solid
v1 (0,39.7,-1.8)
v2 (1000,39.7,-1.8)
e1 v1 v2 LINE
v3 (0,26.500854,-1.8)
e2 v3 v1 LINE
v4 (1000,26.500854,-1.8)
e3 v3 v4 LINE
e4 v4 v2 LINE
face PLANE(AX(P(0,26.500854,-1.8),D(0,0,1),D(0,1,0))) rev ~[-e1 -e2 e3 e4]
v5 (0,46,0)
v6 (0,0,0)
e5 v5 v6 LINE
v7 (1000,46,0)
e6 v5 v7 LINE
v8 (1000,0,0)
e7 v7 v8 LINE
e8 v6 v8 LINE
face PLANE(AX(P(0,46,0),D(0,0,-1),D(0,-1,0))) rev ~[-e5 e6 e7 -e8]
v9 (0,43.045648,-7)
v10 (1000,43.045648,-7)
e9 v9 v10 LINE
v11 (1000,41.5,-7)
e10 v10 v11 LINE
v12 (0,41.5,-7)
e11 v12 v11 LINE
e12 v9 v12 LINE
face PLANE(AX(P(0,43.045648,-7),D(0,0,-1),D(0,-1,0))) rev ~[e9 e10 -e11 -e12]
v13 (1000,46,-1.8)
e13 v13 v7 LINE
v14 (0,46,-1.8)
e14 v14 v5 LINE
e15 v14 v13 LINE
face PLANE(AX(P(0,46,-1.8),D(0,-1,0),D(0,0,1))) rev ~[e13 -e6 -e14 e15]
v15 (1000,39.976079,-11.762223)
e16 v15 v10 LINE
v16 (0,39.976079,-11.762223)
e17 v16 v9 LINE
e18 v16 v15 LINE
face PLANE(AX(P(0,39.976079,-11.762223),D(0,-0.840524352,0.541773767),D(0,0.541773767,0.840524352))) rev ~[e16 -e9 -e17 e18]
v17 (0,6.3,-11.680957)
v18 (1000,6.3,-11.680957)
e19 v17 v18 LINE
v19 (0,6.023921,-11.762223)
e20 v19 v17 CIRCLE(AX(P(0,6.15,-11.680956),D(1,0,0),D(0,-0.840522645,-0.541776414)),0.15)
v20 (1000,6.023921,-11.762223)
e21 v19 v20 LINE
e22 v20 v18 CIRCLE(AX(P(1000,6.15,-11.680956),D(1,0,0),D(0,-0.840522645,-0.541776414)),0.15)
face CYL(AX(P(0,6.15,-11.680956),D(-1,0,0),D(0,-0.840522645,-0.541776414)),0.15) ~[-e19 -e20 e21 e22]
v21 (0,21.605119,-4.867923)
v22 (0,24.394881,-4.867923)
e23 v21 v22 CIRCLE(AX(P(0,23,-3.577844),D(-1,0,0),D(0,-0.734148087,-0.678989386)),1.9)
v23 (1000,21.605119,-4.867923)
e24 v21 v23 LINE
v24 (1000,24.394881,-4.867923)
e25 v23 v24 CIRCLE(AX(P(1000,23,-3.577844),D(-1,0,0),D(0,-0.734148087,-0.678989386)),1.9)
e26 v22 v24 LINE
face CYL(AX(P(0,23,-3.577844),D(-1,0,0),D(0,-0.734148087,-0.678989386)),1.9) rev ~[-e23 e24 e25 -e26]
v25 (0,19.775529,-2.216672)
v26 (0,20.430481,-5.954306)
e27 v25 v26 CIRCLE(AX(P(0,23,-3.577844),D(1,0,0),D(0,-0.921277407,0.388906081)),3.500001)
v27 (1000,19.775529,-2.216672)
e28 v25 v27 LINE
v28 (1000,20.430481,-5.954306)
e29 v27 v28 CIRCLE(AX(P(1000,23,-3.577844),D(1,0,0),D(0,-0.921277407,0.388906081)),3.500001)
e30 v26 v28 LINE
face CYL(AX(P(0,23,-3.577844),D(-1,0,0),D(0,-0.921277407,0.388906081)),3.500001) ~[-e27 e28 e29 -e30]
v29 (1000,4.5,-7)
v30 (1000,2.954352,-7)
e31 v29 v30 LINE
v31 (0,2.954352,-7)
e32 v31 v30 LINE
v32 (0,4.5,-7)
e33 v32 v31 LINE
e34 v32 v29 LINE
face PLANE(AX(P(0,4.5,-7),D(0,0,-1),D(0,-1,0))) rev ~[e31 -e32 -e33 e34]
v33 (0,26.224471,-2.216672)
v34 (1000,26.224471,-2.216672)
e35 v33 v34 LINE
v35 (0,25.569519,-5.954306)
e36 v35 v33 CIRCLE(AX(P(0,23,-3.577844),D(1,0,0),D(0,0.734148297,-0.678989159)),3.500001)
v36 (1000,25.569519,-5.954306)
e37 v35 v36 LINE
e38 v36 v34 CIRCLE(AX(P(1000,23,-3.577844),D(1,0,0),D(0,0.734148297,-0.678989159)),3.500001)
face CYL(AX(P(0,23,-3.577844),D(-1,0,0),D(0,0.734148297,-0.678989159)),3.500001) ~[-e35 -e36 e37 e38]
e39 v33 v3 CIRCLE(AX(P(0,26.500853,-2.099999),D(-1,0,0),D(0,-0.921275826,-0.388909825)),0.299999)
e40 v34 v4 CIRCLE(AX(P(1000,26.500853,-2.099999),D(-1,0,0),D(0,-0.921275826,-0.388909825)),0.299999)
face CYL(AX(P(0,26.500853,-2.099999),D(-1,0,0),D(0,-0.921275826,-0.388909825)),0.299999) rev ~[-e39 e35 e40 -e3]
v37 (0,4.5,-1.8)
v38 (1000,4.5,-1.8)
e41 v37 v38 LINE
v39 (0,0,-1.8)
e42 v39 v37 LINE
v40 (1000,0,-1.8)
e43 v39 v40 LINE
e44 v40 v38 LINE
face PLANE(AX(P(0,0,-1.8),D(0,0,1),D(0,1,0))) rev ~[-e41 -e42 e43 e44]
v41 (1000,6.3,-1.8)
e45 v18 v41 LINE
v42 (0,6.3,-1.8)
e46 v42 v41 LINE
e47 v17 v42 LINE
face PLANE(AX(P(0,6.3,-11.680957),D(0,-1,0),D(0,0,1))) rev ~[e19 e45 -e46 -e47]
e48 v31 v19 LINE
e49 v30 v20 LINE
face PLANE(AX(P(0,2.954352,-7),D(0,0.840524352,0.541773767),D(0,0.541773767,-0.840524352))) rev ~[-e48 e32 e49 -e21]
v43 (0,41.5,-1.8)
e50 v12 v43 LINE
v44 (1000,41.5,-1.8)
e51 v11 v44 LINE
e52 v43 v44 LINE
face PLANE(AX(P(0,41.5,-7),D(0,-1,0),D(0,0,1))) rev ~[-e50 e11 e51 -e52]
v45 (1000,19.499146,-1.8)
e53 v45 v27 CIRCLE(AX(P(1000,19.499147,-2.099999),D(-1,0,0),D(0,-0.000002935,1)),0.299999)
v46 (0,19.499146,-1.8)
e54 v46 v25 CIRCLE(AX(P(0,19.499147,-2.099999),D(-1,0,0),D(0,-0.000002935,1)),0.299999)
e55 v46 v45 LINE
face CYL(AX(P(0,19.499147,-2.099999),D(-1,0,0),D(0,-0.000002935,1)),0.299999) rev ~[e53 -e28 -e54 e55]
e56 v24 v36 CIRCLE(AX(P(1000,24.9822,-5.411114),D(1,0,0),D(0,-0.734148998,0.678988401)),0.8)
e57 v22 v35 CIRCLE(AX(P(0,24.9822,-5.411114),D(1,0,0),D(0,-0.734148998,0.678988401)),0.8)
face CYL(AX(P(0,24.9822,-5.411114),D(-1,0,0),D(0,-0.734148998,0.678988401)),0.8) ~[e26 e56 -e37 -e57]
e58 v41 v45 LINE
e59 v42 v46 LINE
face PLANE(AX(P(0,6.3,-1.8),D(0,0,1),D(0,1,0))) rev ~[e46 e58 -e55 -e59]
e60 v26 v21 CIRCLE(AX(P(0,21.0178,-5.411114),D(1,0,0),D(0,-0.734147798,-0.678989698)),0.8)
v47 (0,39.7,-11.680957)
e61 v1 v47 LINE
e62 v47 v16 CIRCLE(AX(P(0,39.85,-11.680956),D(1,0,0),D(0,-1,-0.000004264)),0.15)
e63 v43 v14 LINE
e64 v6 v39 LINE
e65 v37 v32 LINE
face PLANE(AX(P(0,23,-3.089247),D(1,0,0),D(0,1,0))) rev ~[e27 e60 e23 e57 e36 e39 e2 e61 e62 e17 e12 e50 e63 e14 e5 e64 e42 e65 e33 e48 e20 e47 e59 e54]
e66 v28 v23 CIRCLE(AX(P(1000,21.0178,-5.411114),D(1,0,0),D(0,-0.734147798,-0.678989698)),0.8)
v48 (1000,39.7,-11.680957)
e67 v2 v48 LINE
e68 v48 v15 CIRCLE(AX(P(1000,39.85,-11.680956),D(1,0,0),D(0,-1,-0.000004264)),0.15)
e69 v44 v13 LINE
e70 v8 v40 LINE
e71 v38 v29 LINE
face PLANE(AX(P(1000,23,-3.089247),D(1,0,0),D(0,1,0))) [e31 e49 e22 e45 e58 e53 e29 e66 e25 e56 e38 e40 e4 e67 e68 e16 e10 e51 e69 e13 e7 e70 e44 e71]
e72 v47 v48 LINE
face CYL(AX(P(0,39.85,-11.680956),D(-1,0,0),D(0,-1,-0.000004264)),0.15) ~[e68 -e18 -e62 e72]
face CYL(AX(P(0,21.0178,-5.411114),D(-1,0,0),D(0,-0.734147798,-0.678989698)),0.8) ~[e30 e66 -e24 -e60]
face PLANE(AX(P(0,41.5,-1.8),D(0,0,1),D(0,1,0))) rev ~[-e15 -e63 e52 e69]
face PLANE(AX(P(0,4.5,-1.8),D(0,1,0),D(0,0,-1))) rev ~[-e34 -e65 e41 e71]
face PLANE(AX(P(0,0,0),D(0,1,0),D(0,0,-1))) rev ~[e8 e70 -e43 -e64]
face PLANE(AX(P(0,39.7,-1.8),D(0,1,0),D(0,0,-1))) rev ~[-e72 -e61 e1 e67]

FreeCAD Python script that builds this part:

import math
import FreeCAD as App
import Part
import Sketcher
from FreeCAD import Vector
Q = App.Units.Quantity

doc = App.newDocument("Part")
body = doc.addObject("PartDesign::Body", "Body")

sketch1 = doc.addObject("Sketcher::SketchObject", "Sketch")
body.addObject(sketch1)
sketch1.AttachmentSupport = (doc.YZ_Plane, [""])
sketch1.MapMode = "FlatFace"
sketch1.addGeometry([
    Part.ArcOfCircle(Part.Circle(Vector(23, -3.577844, 0), Vector(0, 0, 1), 1.9), math.radians(-42.764721), math.radians(222.764721)),
    Part.ArcOfCircle(Part.Circle(Vector(24.9822, -5.411114, 0), Vector(0, 0, 1), 0.8), math.radians(137.235356), math.radians(317.235255)),
    Part.ArcOfCircle(Part.Circle(Vector(23, -3.577844, 0), Vector(0, 0, 1), 3.500001), math.radians(-42.764703), math.radians(22.88645)),
    Part.ArcOfCircle(Part.Circle(Vector(26.500853, -2.099999, 0), Vector(0, 0, 1), 0.299999), math.radians(89.999832), math.radians(202.886683)),
    Part.LineSegment(Vector(26.500854, -1.8, 0), Vector(39.7, -1.8, 0)),
    Part.LineSegment(Vector(39.7, -1.8, 0), Vector(39.7, -11.680957, 0)),
    Part.ArcOfCircle(Part.Circle(Vector(39.85, -11.680956, 0), Vector(0, 0, 1), 0.15), math.radians(-179.999756), math.radians(-32.804649)),
    Part.LineSegment(Vector(39.976079, -11.762223, 0), Vector(43.045648, -7, 0)),
    Part.LineSegment(Vector(43.045648, -7, 0), Vector(41.5, -7, 0)),
    Part.LineSegment(Vector(41.5, -7, 0), Vector(41.5, -1.8, 0)),
    Part.LineSegment(Vector(41.5, -1.8, 0), Vector(46, -1.8, 0)),
    Part.LineSegment(Vector(46, -1.8, 0), Vector(46, 0, 0)),
    Part.LineSegment(Vector(46, 0, 0), Vector(0, 0, 0)),
    Part.LineSegment(Vector(0, 0, 0), Vector(0, -1.8, 0)),
    Part.LineSegment(Vector(0, -1.8, 0), Vector(4.5, -1.8, 0)),
    Part.LineSegment(Vector(4.5, -1.8, 0), Vector(4.5, -7, 0)),
    Part.LineSegment(Vector(4.5, -7, 0), Vector(2.954352, -7, 0)),
    Part.LineSegment(Vector(2.954352, -7, 0), Vector(6.023921, -11.762223, 0)),
    Part.ArcOfCircle(Part.Circle(Vector(6.15, -11.680956, 0), Vector(0, 0, 1), 0.15), math.radians(-147.195351), math.radians(-0.000244)),
    Part.LineSegment(Vector(6.3, -11.680957, 0), Vector(6.3, -1.8, 0)),
    Part.LineSegment(Vector(6.3, -1.8, 0), Vector(19.499146, -1.8, 0)),
    Part.ArcOfCircle(Part.Circle(Vector(19.499147, -2.099999, 0), Vector(0, 0, 1), 0.299999), math.radians(-22.886683), math.radians(90.000168)),
    Part.ArcOfCircle(Part.Circle(Vector(23, -3.577844, 0), Vector(0, 0, 1), 3.500001), math.radians(157.11355), math.radians(222.764703)),
    Part.ArcOfCircle(Part.Circle(Vector(21.0178, -5.411114, 0), Vector(0, 0, 1), 0.8), math.radians(-137.235255), math.radians(42.764644)),
], False)
sketch1.addConstraint([
    Sketcher.Constraint("Tangent", 0, 1, 1, 1),
    Sketcher.Constraint("Tangent", 1, 2, 2, 1),
    Sketcher.Constraint("Coincident", 2, 2, 3, 2),
    Sketcher.Constraint("Coincident", 3, 1, 4, 1),
    Sketcher.Constraint("Coincident", 4, 2, 5, 1),
    Sketcher.Constraint("Coincident", 5, 2, 6, 1),
    Sketcher.Constraint("Coincident", 6, 2, 7, 1),
    Sketcher.Constraint("Coincident", 7, 2, 8, 1),
    Sketcher.Constraint("Coincident", 8, 2, 9, 1),
    Sketcher.Constraint("Coincident", 9, 2, 10, 1),
    Sketcher.Constraint("Coincident", 10, 2, 11, 1),
    Sketcher.Constraint("Coincident", 11, 2, 12, 1),
    Sketcher.Constraint("Coincident", 12, 2, 13, 1),
    Sketcher.Constraint("Coincident", 13, 2, 14, 1),
    Sketcher.Constraint("Coincident", 14, 2, 15, 1),
    Sketcher.Constraint("Coincident", 15, 2, 16, 1),
    Sketcher.Constraint("Coincident", 16, 2, 17, 1),
    Sketcher.Constraint("Coincident", 17, 2, 18, 1),
    Sketcher.Constraint("Coincident", 18, 2, 19, 1),
    Sketcher.Constraint("Coincident", 19, 2, 20, 1),
    Sketcher.Constraint("Coincident", 20, 2, 21, 2),
    Sketcher.Constraint("Coincident", 21, 1, 22, 1),
    Sketcher.Constraint("Tangent", 22, 2, 23, 1),
    Sketcher.Constraint("Tangent", 23, 2, 0, 2),
    Sketcher.Constraint("Horizontal", 4),
    Sketcher.Constraint("Vertical", 5),
    Sketcher.Constraint("Horizontal", 8),
    Sketcher.Constraint("Vertical", 9),
    Sketcher.Constraint("Horizontal", 10),
    Sketcher.Constraint("Vertical", 11),
    Sketcher.Constraint("Horizontal", 12),
    Sketcher.Constraint("Vertical", 13),
    Sketcher.Constraint("Horizontal", 14),
    Sketcher.Constraint("Vertical", 15),
    Sketcher.Constraint("Horizontal", 16),
    Sketcher.Constraint("Vertical", 19),
    Sketcher.Constraint("Horizontal", 20),
    Sketcher.Constraint("Coincident", 12, 2, -1, 1),
    Sketcher.Constraint("Coincident", 2, 3, 0, 3),
    Sketcher.Constraint("Coincident", 22, 3, 0, 3),
    Sketcher.Constraint("Equal", 6, 18),
    Sketcher.Constraint("Equal", 3, 21),
    Sketcher.Constraint("Equal", 2, 22),
    Sketcher.Constraint("Horizontal", 6, 3, 18, 3),
    Sketcher.Constraint("Horizontal", 3, 3, 21, 3),
    Sketcher.Constraint("Horizontal", 1, 3, 23, 3),
    Sketcher.Constraint("Horizontal", 18, 3, 5, 2),
    Sketcher.Constraint("Horizontal", 4, 2, 9, 2),
    Sketcher.Constraint("Horizontal", 10, 2, 13, 2),
    Sketcher.Constraint("Horizontal", 8, 2, 15, 2),
    Sketcher.Constraint("Horizontal", 6, 2, 17, 2),
    Sketcher.Constraint("Horizontal", 5, 2, 18, 2),
    Sketcher.Constraint("Horizontal", 2, 2, 21, 1),
    Sketcher.Constraint("Vertical", 21, 3, 20, 2),
    Sketcher.Constraint("Equal", 10, 14),
    Sketcher.Constraint("Equal", 8, 16),
    Sketcher.Constraint("Equal", 4, 20),
    Sketcher.Constraint("Equal", 7, 17),
    Sketcher.Constraint("Radius", 0, Q("1.9 mm")),
    Sketcher.Constraint("Radius", 1, Q("0.8 mm")),
    Sketcher.Constraint("Radius", 3, Q("0.299999 mm")),
    Sketcher.Constraint("DistanceX", 12, 2, 12, 1, Q("46 mm")),
    Sketcher.Constraint("Radius", 6, Q("0.15 mm")),
    Sketcher.Constraint("DistanceX", 10, 1, 10, 2, Q("4.5 mm")),
    Sketcher.Constraint("DistanceY", 9, 1, 9, 2, Q("5.2 mm")),
    Sketcher.Constraint("DistanceY", 11, 1, 11, 2, Q("1.8 mm")),
    Sketcher.Constraint("DistanceX", -1, 1, 0, 3, Q("23 mm")),
    Sketcher.Constraint("DistanceX", -1, 1, 4, 2, Q("39.7 mm")),
    Sketcher.Constraint("DistanceX", -1, 1, 1, 3, Q("24.9822 mm")),
    Sketcher.Constraint("DistanceX", 4, 1, 4, 2, Q("13.199146 mm")),
    Sketcher.Constraint("DistanceX", 8, 2, 8, 1, Q("1.545648 mm")),
    Sketcher.Constraint("DistanceY", 5, 2, 5, 1, Q("9.880957 mm")),
    Sketcher.Constraint("DistanceX", -1, 1, 2, 2, Q("26.224471 mm")),
    Sketcher.Constraint("DistanceX", -1, 1, 6, 2, Q("39.976079 mm")),
])
pad1 = doc.addObject("PartDesign::Pad", "Pad")
body.addObject(pad1)
pad1.Profile = sketch1
pad1.Length = 1000

doc.recompute()
